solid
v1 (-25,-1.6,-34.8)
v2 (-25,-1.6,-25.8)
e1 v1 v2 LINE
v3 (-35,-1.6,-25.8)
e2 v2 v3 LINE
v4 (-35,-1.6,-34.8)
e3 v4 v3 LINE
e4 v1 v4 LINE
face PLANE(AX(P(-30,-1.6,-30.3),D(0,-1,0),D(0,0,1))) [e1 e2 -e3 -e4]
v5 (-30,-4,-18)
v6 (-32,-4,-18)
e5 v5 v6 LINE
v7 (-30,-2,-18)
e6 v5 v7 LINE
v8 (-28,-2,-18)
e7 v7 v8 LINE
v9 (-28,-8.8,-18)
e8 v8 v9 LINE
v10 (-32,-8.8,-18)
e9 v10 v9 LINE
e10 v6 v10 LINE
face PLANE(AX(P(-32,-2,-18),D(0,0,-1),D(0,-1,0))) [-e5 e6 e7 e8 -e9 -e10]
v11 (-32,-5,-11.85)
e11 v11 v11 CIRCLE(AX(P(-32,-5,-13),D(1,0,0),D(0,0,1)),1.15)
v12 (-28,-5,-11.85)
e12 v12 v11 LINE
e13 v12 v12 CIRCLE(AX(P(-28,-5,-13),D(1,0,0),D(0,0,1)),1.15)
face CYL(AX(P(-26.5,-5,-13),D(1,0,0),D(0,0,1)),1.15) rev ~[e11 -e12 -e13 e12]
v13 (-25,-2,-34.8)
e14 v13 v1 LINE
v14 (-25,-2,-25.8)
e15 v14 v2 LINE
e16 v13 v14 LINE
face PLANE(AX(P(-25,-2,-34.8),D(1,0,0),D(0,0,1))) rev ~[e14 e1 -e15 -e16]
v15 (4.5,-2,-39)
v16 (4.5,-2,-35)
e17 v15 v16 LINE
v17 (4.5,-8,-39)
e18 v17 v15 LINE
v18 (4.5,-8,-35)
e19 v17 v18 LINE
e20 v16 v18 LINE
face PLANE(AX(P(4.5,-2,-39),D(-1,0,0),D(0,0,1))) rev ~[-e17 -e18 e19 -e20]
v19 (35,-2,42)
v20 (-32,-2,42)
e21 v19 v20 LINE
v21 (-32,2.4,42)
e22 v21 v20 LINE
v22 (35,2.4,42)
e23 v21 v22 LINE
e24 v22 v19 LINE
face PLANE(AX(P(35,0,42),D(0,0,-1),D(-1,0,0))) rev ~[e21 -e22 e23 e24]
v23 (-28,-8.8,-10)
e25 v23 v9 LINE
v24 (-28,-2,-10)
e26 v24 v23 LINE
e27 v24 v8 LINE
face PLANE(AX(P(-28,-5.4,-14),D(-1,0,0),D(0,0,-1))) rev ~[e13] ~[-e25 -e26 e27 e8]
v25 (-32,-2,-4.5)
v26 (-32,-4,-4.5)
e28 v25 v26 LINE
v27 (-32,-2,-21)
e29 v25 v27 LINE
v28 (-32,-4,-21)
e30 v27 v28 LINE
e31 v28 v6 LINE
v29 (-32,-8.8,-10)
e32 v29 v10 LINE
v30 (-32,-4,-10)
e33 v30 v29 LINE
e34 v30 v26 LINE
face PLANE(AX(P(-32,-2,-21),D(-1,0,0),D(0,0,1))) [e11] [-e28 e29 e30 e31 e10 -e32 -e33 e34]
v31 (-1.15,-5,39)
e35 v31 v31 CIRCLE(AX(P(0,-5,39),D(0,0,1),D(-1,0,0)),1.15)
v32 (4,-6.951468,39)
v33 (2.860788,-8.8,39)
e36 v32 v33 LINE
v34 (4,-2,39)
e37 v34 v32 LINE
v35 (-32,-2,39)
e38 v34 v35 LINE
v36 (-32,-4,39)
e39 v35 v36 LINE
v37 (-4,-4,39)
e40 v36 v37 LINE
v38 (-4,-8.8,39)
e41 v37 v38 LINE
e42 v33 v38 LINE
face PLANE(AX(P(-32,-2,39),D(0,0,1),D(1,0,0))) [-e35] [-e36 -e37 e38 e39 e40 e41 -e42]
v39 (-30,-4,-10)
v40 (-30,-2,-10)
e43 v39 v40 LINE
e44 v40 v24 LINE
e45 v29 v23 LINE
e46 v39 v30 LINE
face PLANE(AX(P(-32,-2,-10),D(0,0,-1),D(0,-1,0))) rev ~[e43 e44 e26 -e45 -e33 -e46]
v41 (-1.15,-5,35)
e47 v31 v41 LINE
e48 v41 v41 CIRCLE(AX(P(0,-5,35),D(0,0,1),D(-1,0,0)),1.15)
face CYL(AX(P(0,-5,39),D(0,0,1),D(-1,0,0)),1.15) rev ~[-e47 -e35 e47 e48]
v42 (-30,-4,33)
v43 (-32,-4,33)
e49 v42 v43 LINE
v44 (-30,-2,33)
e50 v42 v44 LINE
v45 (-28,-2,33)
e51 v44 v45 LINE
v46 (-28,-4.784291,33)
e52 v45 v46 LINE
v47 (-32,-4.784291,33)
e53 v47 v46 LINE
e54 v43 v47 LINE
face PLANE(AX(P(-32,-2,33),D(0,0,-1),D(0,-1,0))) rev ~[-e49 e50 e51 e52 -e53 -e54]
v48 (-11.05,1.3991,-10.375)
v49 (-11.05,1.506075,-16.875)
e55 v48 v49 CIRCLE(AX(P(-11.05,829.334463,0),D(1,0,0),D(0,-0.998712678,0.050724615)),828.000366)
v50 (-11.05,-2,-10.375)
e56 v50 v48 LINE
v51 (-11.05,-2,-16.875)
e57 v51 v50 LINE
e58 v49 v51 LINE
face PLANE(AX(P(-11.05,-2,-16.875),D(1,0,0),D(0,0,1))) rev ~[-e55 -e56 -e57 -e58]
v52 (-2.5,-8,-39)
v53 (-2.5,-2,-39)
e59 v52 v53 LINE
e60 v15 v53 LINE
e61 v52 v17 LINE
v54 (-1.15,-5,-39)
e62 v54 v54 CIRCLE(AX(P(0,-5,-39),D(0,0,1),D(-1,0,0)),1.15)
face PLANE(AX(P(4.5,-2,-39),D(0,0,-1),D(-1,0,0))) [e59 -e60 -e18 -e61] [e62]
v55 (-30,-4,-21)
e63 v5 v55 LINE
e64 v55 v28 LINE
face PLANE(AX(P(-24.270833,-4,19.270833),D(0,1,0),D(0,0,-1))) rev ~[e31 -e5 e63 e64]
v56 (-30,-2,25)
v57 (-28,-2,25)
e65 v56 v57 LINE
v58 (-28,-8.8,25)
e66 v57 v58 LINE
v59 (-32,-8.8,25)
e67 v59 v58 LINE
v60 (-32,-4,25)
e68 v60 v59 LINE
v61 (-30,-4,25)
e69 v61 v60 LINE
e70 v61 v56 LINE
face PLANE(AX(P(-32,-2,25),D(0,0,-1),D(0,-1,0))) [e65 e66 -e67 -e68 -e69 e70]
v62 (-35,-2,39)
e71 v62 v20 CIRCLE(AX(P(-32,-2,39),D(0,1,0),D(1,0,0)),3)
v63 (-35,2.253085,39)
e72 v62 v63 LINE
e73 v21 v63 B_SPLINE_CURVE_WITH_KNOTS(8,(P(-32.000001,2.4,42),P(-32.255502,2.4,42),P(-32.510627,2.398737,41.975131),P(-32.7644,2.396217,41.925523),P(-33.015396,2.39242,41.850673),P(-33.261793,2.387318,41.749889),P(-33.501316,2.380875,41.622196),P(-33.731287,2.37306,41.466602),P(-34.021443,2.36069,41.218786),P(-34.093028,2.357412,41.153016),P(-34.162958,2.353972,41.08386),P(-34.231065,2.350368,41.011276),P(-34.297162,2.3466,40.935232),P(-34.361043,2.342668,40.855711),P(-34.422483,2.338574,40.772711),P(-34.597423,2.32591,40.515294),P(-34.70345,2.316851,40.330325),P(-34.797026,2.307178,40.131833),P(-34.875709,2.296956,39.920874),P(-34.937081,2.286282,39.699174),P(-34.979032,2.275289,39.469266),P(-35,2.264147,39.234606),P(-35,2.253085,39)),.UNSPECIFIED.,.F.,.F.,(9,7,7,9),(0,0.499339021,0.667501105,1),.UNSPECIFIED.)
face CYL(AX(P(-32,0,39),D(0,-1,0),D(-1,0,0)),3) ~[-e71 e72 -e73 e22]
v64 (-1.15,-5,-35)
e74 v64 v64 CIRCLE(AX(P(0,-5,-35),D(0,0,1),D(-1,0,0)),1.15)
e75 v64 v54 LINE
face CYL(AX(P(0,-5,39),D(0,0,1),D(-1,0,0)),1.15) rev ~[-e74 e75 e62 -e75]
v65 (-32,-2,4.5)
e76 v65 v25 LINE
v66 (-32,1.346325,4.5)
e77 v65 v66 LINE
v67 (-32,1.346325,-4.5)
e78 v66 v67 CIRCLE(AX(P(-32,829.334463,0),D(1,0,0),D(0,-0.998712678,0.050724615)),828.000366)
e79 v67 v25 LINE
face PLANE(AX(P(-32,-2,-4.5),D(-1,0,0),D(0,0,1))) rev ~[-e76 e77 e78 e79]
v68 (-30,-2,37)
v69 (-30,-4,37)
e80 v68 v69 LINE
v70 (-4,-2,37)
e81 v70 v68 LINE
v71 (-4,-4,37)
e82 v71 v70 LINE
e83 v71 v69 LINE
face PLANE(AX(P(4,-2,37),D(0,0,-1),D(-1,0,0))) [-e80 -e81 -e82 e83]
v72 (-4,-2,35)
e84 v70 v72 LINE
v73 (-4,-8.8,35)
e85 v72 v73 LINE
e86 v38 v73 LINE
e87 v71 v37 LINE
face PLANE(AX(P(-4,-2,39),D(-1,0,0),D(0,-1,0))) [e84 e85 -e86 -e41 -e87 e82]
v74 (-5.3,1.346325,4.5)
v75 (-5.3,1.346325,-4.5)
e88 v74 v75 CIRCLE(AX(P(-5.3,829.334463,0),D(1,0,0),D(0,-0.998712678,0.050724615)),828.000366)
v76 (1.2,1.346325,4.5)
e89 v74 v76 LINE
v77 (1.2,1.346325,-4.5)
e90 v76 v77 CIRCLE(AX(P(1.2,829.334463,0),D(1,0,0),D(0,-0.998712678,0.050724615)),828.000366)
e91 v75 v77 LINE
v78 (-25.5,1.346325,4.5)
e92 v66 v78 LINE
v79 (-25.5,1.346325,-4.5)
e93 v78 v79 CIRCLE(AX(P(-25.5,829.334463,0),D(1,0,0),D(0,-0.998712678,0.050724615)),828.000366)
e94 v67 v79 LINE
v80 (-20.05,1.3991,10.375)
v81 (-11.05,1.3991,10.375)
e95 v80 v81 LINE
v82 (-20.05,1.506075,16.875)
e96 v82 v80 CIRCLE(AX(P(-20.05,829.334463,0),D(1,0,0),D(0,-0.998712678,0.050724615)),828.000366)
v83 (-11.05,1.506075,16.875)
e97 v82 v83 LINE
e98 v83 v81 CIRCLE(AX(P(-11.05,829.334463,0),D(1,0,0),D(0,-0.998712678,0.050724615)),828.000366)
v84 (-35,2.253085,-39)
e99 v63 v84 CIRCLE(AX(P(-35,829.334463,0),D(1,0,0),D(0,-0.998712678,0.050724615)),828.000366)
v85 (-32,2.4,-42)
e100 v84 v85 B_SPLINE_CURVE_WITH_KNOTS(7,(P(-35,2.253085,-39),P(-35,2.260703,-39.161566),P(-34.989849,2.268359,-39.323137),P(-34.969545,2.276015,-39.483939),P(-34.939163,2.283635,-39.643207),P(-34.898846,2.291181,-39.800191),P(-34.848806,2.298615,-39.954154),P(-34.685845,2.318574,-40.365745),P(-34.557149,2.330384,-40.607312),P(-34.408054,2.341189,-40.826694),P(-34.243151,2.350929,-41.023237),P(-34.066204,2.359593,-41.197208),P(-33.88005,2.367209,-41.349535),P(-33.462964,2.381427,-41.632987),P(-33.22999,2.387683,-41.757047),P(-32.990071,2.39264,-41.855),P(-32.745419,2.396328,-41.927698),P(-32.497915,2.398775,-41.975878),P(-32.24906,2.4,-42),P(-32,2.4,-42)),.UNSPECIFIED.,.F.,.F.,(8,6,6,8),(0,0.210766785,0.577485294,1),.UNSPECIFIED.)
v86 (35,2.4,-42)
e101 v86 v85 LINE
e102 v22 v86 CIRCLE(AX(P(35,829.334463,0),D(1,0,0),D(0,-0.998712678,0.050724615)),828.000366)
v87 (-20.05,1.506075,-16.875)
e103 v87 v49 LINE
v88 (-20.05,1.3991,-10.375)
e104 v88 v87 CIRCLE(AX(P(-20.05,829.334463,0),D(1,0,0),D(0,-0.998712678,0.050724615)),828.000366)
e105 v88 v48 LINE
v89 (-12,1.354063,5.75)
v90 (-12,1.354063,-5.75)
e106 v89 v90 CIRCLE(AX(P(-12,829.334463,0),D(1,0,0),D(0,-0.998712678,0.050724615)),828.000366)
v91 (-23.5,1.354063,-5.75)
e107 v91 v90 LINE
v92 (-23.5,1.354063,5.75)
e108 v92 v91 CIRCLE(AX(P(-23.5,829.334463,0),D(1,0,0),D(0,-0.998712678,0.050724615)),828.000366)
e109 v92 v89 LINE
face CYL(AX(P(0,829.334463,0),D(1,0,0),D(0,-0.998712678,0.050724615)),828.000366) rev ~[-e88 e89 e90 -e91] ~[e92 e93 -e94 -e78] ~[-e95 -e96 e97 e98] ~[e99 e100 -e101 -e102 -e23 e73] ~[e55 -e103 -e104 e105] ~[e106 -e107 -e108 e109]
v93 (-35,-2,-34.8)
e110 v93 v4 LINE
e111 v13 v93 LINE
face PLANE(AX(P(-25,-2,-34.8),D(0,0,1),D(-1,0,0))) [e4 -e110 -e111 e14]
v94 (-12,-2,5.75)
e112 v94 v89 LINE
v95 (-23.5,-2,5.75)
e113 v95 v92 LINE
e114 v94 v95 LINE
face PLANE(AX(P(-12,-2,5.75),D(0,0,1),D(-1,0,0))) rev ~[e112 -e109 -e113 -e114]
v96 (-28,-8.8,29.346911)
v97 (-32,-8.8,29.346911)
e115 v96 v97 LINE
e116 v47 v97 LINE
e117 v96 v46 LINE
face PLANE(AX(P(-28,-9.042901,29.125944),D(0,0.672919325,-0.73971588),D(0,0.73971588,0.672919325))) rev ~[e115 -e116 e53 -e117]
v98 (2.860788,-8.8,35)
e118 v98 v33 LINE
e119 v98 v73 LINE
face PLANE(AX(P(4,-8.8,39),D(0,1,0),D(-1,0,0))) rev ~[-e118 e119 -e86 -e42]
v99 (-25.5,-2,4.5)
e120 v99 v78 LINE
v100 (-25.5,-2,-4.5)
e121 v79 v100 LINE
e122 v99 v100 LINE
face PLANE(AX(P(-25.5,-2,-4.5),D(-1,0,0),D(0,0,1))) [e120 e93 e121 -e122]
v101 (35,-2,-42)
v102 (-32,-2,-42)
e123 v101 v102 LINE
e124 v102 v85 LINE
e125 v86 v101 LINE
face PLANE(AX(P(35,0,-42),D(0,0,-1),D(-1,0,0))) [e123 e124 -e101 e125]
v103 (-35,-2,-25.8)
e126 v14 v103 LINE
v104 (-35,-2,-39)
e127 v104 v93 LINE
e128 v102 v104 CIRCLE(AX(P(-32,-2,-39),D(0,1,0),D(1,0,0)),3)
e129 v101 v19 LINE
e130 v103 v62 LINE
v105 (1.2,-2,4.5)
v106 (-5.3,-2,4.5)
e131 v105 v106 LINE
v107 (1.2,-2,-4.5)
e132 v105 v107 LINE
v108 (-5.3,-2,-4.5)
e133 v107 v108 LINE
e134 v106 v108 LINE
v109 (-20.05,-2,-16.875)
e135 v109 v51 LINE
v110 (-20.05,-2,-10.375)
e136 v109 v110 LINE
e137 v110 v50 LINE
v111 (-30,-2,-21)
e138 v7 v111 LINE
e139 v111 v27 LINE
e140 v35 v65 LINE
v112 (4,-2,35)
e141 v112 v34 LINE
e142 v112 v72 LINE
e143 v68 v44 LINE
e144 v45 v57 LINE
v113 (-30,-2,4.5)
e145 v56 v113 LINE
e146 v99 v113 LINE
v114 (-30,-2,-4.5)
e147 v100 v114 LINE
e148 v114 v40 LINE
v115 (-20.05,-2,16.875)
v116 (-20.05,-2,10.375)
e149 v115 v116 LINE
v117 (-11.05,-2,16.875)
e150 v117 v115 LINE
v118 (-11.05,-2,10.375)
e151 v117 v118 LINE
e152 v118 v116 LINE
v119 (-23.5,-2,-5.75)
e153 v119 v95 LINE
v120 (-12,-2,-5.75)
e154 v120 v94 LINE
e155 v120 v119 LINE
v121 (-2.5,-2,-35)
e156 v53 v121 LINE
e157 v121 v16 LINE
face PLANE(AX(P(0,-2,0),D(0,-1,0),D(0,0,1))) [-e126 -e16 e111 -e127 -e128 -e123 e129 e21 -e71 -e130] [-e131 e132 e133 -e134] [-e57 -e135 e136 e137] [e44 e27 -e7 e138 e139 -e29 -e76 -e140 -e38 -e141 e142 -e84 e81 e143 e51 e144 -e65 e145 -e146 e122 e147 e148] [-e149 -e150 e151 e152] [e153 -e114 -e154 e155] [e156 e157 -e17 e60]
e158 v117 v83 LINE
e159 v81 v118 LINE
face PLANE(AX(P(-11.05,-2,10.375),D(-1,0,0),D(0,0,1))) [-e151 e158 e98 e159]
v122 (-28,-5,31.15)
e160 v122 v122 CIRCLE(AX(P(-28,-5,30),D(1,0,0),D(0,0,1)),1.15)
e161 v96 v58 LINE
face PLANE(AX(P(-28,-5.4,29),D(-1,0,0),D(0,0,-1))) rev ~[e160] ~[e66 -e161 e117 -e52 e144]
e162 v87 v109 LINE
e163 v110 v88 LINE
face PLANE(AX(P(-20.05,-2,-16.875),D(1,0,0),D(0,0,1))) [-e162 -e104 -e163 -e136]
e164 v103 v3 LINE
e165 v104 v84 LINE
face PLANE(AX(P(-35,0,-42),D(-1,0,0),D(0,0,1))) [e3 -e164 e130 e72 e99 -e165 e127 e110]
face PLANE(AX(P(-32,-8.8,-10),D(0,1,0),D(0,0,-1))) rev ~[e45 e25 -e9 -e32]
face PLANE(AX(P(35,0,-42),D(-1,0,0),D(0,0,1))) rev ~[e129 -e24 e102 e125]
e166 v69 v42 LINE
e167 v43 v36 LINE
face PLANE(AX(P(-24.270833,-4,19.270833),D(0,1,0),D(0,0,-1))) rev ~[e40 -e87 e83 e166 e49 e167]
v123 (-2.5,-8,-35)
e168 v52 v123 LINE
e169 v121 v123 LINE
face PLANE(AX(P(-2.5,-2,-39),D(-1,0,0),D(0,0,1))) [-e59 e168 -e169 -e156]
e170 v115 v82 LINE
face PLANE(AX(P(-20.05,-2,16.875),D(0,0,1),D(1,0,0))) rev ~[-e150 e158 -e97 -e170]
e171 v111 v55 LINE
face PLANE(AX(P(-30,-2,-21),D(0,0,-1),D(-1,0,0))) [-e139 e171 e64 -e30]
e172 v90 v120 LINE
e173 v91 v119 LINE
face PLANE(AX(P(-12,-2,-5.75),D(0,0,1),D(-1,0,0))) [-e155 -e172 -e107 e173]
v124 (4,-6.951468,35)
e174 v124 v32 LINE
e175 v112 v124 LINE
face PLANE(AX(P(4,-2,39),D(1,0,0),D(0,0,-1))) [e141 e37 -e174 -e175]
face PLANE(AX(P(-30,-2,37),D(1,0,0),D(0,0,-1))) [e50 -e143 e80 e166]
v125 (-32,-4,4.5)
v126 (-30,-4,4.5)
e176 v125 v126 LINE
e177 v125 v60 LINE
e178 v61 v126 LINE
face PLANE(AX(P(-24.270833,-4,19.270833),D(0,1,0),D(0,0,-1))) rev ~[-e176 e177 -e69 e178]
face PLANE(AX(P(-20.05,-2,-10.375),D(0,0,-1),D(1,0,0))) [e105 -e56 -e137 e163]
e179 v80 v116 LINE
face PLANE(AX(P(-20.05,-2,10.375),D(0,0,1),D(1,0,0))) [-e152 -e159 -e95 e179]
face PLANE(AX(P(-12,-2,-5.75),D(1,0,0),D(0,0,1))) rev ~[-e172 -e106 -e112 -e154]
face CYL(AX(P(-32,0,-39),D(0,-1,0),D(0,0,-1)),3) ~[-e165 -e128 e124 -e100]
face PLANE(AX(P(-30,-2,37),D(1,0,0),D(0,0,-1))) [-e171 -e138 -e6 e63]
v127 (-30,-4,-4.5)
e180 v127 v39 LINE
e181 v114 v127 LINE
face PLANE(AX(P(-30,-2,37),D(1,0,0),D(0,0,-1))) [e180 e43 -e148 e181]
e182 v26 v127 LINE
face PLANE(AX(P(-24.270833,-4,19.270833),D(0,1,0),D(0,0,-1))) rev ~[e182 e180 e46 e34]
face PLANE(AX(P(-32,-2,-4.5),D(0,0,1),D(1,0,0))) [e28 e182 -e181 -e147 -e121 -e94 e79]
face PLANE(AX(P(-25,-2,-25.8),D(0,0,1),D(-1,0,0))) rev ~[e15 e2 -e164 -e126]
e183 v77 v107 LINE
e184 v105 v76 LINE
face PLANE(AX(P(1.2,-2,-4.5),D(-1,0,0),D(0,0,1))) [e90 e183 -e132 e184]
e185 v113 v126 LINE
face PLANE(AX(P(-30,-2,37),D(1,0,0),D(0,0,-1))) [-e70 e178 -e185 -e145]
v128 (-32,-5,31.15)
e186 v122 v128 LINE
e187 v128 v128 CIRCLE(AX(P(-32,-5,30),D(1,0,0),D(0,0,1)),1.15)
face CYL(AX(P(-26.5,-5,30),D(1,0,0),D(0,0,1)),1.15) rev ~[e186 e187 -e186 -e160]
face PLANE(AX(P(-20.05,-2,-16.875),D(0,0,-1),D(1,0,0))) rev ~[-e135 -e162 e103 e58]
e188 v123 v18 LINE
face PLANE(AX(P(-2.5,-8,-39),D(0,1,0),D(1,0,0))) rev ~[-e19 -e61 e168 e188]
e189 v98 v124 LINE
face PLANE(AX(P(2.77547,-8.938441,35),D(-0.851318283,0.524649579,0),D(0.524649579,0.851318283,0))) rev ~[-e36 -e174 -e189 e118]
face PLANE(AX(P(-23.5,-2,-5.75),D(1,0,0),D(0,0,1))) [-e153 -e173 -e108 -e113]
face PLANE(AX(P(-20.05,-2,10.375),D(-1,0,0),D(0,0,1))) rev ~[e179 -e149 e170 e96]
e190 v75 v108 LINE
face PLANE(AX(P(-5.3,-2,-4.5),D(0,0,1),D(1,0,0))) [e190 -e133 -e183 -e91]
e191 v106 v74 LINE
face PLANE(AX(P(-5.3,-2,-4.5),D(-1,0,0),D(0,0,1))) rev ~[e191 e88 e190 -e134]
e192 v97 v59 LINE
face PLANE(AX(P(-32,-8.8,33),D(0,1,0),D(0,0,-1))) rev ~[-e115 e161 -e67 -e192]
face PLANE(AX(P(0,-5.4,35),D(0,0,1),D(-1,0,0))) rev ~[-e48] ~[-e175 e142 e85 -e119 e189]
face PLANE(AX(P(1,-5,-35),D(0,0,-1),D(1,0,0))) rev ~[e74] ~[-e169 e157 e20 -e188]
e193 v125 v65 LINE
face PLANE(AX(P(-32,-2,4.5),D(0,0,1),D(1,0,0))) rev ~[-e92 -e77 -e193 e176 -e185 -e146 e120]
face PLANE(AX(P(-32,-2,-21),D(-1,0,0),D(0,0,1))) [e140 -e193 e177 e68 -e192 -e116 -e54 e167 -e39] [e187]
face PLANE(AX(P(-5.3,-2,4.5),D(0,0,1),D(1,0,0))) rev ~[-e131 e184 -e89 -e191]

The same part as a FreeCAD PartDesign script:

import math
import FreeCAD as App
import Part
import Sketcher

V = App.Vector


def edges_at(feature, points):
    """Names of the edges that pass closest to the given points."""
    edges = feature.Shape.Edges
    near = lambda p: min(range(len(edges)), key=lambda i: edges[i].distToShape(Part.Vertex(*p))[0])
    return sorted({f"Edge{near(p) + 1}" for p in points})

doc = App.newDocument("Part")
body = doc.addObject("PartDesign::Body", "Body")

# Sketch on XY plane
sketch1 = body.newObject("Sketcher::SketchObject", "Sketch")
sketch1.AttachmentSupport = (doc.getObject("XY_Plane"), [""])
sketch1.MapMode = "FlatFace"
sketch1.addGeometry([
    Part.LineSegment(V(-42, 35, 0), V(-42, -35, 0)),
    Part.LineSegment(V(-42, -35, 0), V(42, -35, 0)),
    Part.LineSegment(V(42, -35, 0), V(42, 35, 0)),
    Part.LineSegment(V(42, 35, 0), V(-42, 35, 0)),
], False)
sketch1.addConstraint([
    Sketcher.Constraint("Coincident", 0, 2, 1, 1),
    Sketcher.Constraint("Coincident", 1, 2, 2, 1),
    Sketcher.Constraint("Coincident", 2, 2, 3, 1),
    Sketcher.Constraint("Coincident", 3, 2, 0, 1),
    Sketcher.Constraint("Vertical", 0),
    Sketcher.Constraint("Horizontal", 1),
    Sketcher.Constraint("Vertical", 2),
    Sketcher.Constraint("Horizontal", 3),
    Sketcher.Constraint("Symmetric", 0, 2, 2, 2, -1, 1),
    Sketcher.Constraint("DistanceX", 1, 1, 1, 2, 84.0),
    Sketcher.Constraint("DistanceY", 0, 2, 0, 1, 70.0),
])
pad1 = body.newObject("PartDesign::Pad", "Pad")
pad1.Profile = sketch1
pad1.Length = 2

# Sketch on XY plane
sketch2 = body.newObject("Sketcher::SketchObject", "Sketch001")
sketch2.AttachmentSupport = (doc.getObject("XY_Plane"), [""])
sketch2.MapMode = "FlatFace"
sketch2.AttachmentOffset = App.Placement(V(0, 0, 2), App.Rotation())
sketch2.addGeometry([
    Part.LineSegment(V(-39, 2.5, 0), V(-39, -4.5, 0)),  # 0
    Part.LineSegment(V(-39, -4.5, 0), V(-37, -4.5, 0)),  # 1
    Part.LineSegment(V(-37, -4.5, 0), V(-37, 2.5, 0)),  # 2
    Part.LineSegment(V(-37, 2.5, 0), V(-39, 2.5, 0)),  # 3
    Part.LineSegment(V(39, 32, 0), V(-21, 32, 0)),  # 4
    Part.LineSegment(V(-21, 32, 0), V(-21, 30, 0)),  # 5
    Part.LineSegment(V(-21, 30, 0), V(37, 30, 0)),  # 6
    Part.LineSegment(V(37, 30, 0), V(37, -4, 0)),  # 7
    Part.LineSegment(V(37, -4, 0), V(39, -4, 0)),  # 8
    Part.LineSegment(V(39, -4, 0), V(39, 32, 0)),  # 9
], False)
sketch2.addConstraint([
    Sketcher.Constraint("Coincident", 0, 2, 1, 1),
    Sketcher.Constraint("Coincident", 1, 2, 2, 1),
    Sketcher.Constraint("Coincident", 2, 2, 3, 1),
    Sketcher.Constraint("Coincident", 3, 2, 0, 1),
    Sketcher.Constraint("Coincident", 4, 2, 5, 1),
    Sketcher.Constraint("Coincident", 5, 2, 6, 1),
    Sketcher.Constraint("Coincident", 6, 2, 7, 1),
    Sketcher.Constraint("Coincident", 7, 2, 8, 1),
    Sketcher.Constraint("Coincident", 8, 2, 9, 1),
    Sketcher.Constraint("Coincident", 9, 2, 4, 1),
    Sketcher.Constraint("Vertical", 0),
    Sketcher.Constraint("Horizontal", 1),
    Sketcher.Constraint("Vertical", 2),
    Sketcher.Constraint("Horizontal", 3),
    Sketcher.Constraint("Horizontal", 4),
    Sketcher.Constraint("Vertical", 5),
    Sketcher.Constraint("Horizontal", 6),
    Sketcher.Constraint("Vertical", 7),
    Sketcher.Constraint("Horizontal", 8),
    Sketcher.Constraint("Vertical", 9),
    Sketcher.Constraint("Equal", 3, 8),
    Sketcher.Constraint("Equal", 8, 5),
    Sketcher.Constraint("DistanceX", 1, 1, 1, 2, 2.0),
    Sketcher.Constraint("DistanceX", 4, 2, 4, 1, 60.0),
    Sketcher.Constraint("DistanceY", 0, 2, 0, 1, 7.0),
    Sketcher.Constraint("DistanceY", 7, 2, 7, 1, 34.0),
    Sketcher.Constraint("DistanceX", 0, 2, -1, 1, 39.0),
    Sketcher.Constraint("DistanceX", 4, 2, -1, 1, 21.0),
    Sketcher.Constraint("DistanceY", -1, 1, 4, 2, 32.0),
    Sketcher.Constraint("DistanceY", 0, 2, -1, 1, 4.5),
])
pad2 = body.newObject("PartDesign::Pad", "Pad001")
pad2.Profile = sketch2
pad2.Length = 2

# Sketch on YZ plane
sketch3 = body.newObject("Sketcher::SketchObject", "Sketch002")
sketch3.AttachmentSupport = (doc.getObject("YZ_Plane"), [""])
sketch3.MapMode = "FlatFace"
sketch3.AttachmentOffset = App.Placement(V(0, 0, 39), App.Rotation())
sketch3.addGeometry([
    Part.LineSegment(V(-4, 9, 0), V(-4, 2, 0)),
    Part.LineSegment(V(-4, 2, 0), V(4, 2, 0)),
    Part.LineSegment(V(4, 2, 0), V(4, 9, 0)),
    Part.LineSegment(V(4, 9, 0), V(-4, 9, 0)),
], False)
sketch3.addConstraint([
    Sketcher.Constraint("Coincident", 0, 2, 1, 1),
    Sketcher.Constraint("Coincident", 1, 2, 2, 1),
    Sketcher.Constraint("Coincident", 2, 2, 3, 1),
    Sketcher.Constraint("Coincident", 3, 2, 0, 1),
    Sketcher.Constraint("Vertical", 0),
    Sketcher.Constraint("Horizontal", 1),
    Sketcher.Constraint("Vertical", 2),
    Sketcher.Constraint("Horizontal", 3),
    Sketcher.Constraint("DistanceX", 1, 1, 1, 2, 8.0),
    Sketcher.Constraint("DistanceY", 0, 2, 0, 1, 6.8),
    Sketcher.Constraint("DistanceX", 0, 2, -1, 1, 4.0),
    Sketcher.Constraint("DistanceY", -1, 1, 0, 2, 2.0),
])
pad3 = body.newObject("PartDesign::Pad", "Pad002")
pad3.Profile = sketch3
pad3.Length = 4
pad3.Reversed = True

# Sketch on YZ plane
sketch4 = body.newObject("Sketcher::SketchObject", "Sketch003")
sketch4.AttachmentSupport = (doc.getObject("YZ_Plane"), [""])
sketch4.MapMode = "FlatFace"
sketch4.AttachmentOffset = App.Placement(V(0, 0, -39), App.Rotation())
sketch4.addGeometry([
    Part.LineSegment(V(2, 8, 0), V(2, 2, 0)),
    Part.LineSegment(V(2, 2, 0), V(-4, 2, 0)),
    Part.LineSegment(V(-4, 2, 0), V(-4, 8, 0)),
    Part.LineSegment(V(-4, 8, 0), V(2, 8, 0)),
], False)
sketch4.addConstraint([
    Sketcher.Constraint("Coincident", 0, 2, 1, 1),
    Sketcher.Constraint("Coincident", 1, 2, 2, 1),
    Sketcher.Constraint("Coincident", 2, 2, 3, 1),
    Sketcher.Constraint("Coincident", 3, 2, 0, 1),
    Sketcher.Constraint("Vertical", 0),
    Sketcher.Constraint("Horizontal", 1),
    Sketcher.Constraint("Vertical", 2),
    Sketcher.Constraint("Horizontal", 3),
    Sketcher.Constraint("DistanceX", 1, 2, 1, 1, 7.0),
    Sketcher.Constraint("DistanceY", 0, 2, 0, 1, 6.0),
    Sketcher.Constraint("DistanceY", -1, 1, 0, 2, 2.0),
    Sketcher.Constraint("DistanceX", -1, 1, 0, 2, 2.5),
])
pad4 = body.newObject("PartDesign::Pad", "Pad003")
pad4.Profile = sketch4
pad4.Length = 4

# Sketch on XZ plane
sketch5 = body.newObject("Sketcher::SketchObject", "Sketch004")
sketch5.AttachmentSupport = (doc.getObject("XZ_Plane"), [""])
sketch5.MapMode = "FlatFace"
sketch5.AttachmentOffset = App.Placement(V(0, 0, -32), App.Rotation())
sketch5.addGeometry([
    Part.LineSegment(V(33, 9, 0), V(33, 2, 0)),  # 0
    Part.LineSegment(V(33, 2, 0), V(25, 2, 0)),  # 1
    Part.LineSegment(V(25, 2, 0), V(25, 9, 0)),  # 2
    Part.LineSegment(V(25, 9, 0), V(33, 9, 0)),  # 3
    Part.LineSegment(V(-10, 9, 0), V(-10, 2, 0)),  # 4
    Part.LineSegment(V(-10, 2, 0), V(-18, 2, 0)),  # 5
    Part.LineSegment(V(-18, 2, 0), V(-18, 9, 0)),  # 6
    Part.LineSegment(V(-18, 9, 0), V(-10, 9, 0)),  # 7
], False)
sketch5.addConstraint([
    Sketcher.Constraint("Coincident", 0, 2, 1, 1),
    Sketcher.Constraint("Coincident", 1, 2, 2, 1),
    Sketcher.Constraint("Coincident", 2, 2, 3, 1),
    Sketcher.Constraint("Coincident", 3, 2, 0, 1),
    Sketcher.Constraint("Coincident", 4, 2, 5, 1),
    Sketcher.Constraint("Coincident", 5, 2, 6, 1),
    Sketcher.Constraint("Coincident", 6, 2, 7, 1),
    Sketcher.Constraint("Coincident", 7, 2, 4, 1),
    Sketcher.Constraint("Vertical", 0),
    Sketcher.Constraint("Horizontal", 1),
    Sketcher.Constraint("Vertical", 2),
    Sketcher.Constraint("Horizontal", 3),
    Sketcher.Constraint("Vertical", 4),
    Sketcher.Constraint("Horizontal", 5),
    Sketcher.Constraint("Vertical", 6),
    Sketcher.Constraint("Horizontal", 7),
    Sketcher.Constraint("Horizontal", 1, 2, 4, 2),
    Sketcher.Constraint("Horizontal", 3, 2, 6, 2),
    Sketcher.Constraint("Equal", 3, 5),
    Sketcher.Constraint("DistanceX", 1, 2, 1, 1, 8.0),
    Sketcher.Constraint("DistanceY", 0, 2, 0, 1, 6.8),
    Sketcher.Constraint("DistanceX", -1, 1, 0, 2, 33.0),
    Sketcher.Constraint("DistanceY", -1, 1, 0, 2, 2.0),
    Sketcher.Constraint("DistanceX", 4, 2, -1, 1, 10.0),
])
pad5 = body.newObject("PartDesign::Pad", "Pad004")
pad5.Profile = sketch5
pad5.Length = 4

# Sketch on YZ plane
sketch6 = body.newObject("Sketcher::SketchObject", "Sketch005")
sketch6.AttachmentSupport = (doc.getObject("YZ_Plane"), [""])
sketch6.MapMode = "FlatFace"
sketch6.AttachmentOffset = App.Placement(V(0, 0, 39), App.Rotation())
sketch6.addGeometry(Part.Circle(V(0, 5, 0), V(0, 0, 1), 1.1), False)
sketch6.addConstraint([
    Sketcher.Constraint("PointOnObject", 0, 3, -2),
    Sketcher.Constraint("Diameter", 0, 2.3),
    Sketcher.Constraint("DistanceY", -1, 1, 0, 3, 5.0),
])
pocket1 = body.newObject("PartDesign::Pocket", "Pocket")
pocket1.Profile = sketch6
pocket1.Type = "ThroughAll"

# Sketch on XZ plane
sketch7 = body.newObject("Sketcher::SketchObject", "Sketch006")
sketch7.AttachmentSupport = (doc.getObject("XZ_Plane"), [""])
sketch7.MapMode = "FlatFace"
sketch7.AttachmentOffset = App.Placement(V(0, 0, -26.5), App.Rotation())
sketch7.addGeometry([
    Part.Circle(V(-13, 5, 0), V(0, 0, 1), 1.1),
    Part.Circle(V(30, 5, 0), V(0, 0, 1), 1.1),
], False)
sketch7.addConstraint([
    Sketcher.Constraint("Equal", 0, 1),
    Sketcher.Constraint("Horizontal", 0, 3, 1, 3),
    Sketcher.Constraint("Diameter", 0, 2.3),
    Sketcher.Constraint("DistanceX", 0, 3, -1, 1, 13.0),
    Sketcher.Constraint("DistanceY", -1, 1, 0, 3, 5.0),
    Sketcher.Constraint("DistanceX", -1, 1, 1, 3, 30.0),
])
pocket2 = body.newObject("PartDesign::Pocket", "Pocket001")
pocket2.Profile = sketch7
pocket2.Type = "ThroughAll"

# Sketch on XY plane
sketch8 = body.newObject("Sketcher::SketchObject", "Sketch007")
sketch8.AttachmentSupport = (doc.getObject("XY_Plane"), [""])
sketch8.MapMode = "FlatFace"
sketch8.AttachmentOffset = App.Placement(V(0, 0, 2), App.Rotation())
sketch8.addGeometry([
    Part.LineSegment(V(-6, 24, 0), V(-6, 12, 0)),
    Part.LineSegment(V(-6, 12, 0), V(6, 12, 0)),
    Part.LineSegment(V(6, 12, 0), V(6, 24, 0)),
    Part.LineSegment(V(6, 24, 0), V(-6, 24, 0)),
], False)
sketch8.addConstraint([
    Sketcher.Constraint("Coincident", 0, 2, 1, 1),
    Sketcher.Constraint("Coincident", 1, 2, 2, 1),
    Sketcher.Constraint("Coincident", 2, 2, 3, 1),
    Sketcher.Constraint("Coincident", 3, 2, 0, 1),
    Sketcher.Constraint("Vertical", 0),
    Sketcher.Constraint("Horizontal", 1),
    Sketcher.Constraint("Vertical", 2),
    Sketcher.Constraint("Horizontal", 3),
    Sketcher.Constraint("Equal", 3, 0),
    Sketcher.Constraint("DistanceX", 1, 1, 1, 2, 11.5),
    Sketcher.Constraint("DistanceY", -1, 1, 0, 2, 12.0),
    Sketcher.Constraint("DistanceX", 0, 2, -1, 1, 5.75),
])
pocket3 = body.newObject("PartDesign::Pocket", "Pocket002")
pocket3.Profile = sketch8
pocket3.Length = 5

# Sketch on XZ plane
sketch9 = body.newObject("Sketcher::SketchObject", "Sketch008")
sketch9.AttachmentSupport = (doc.getObject("XZ_Plane"), [""])
sketch9.MapMode = "FlatFace"
sketch9.AttachmentOffset = App.Placement(V(0, 0, -28), App.Rotation())
sketch9.addGeometry([
    Part.LineSegment(V(29.1, 9, 0), V(33.3, 4.5, 0)),
    Part.LineSegment(V(33.3, 4.5, 0), V(33.3, 9, 0)),
    Part.LineSegment(V(33.3, 9, 0), V(29.1, 9, 0)),
], False)
sketch9.addConstraint([
    Sketcher.Constraint("Coincident", 0, 2, 1, 1),
    Sketcher.Constraint("Coincident", 1, 2, 2, 1),
    Sketcher.Constraint("Coincident", 2, 2, 0, 1),
    Sketcher.Constraint("Vertical", 1),
    Sketcher.Constraint("Horizontal", 2),
    Sketcher.Constraint("DistanceY", -1, 1, 1, 2, 9.042901),
    Sketcher.Constraint("DistanceX", 2, 2, 2, 1, 4.132925),
    Sketcher.Constraint("DistanceY", 1, 1, 1, 2, 4.543175),
    Sketcher.Constraint("DistanceX", -1, 1, 0, 2, 33.258869),
])
pocket4 = body.newObject("PartDesign::Pocket", "Pocket003")
pocket4.Profile = sketch9
pocket4.Length = 5

# Sketch on YZ plane
sketch10 = body.newObject("Sketcher::SketchObject", "Sketch009")
sketch10.AttachmentSupport = (doc.getObject("YZ_Plane"), [""])
sketch10.MapMode = "FlatFace"
sketch10.AttachmentOffset = App.Placement(V(0, 0, 35), App.Rotation())
sketch10.addGeometry([
    Part.LineSegment(V(-2.8, 8.9, 0), V(-6.4, 3.1, 0)),
    Part.LineSegment(V(-6.4, 3.1, 0), V(-6.4, 8.9, 0)),
    Part.LineSegment(V(-6.4, 8.9, 0), V(-2.8, 8.9, 0)),
], False)
sketch10.addConstraint([
    Sketcher.Constraint("Coincident", 0, 2, 1, 1),
    Sketcher.Constraint("Coincident", 1, 2, 2, 1),
    Sketcher.Constraint("Coincident", 2, 2, 0, 1),
    Sketcher.Constraint("Vertical", 1),
    Sketcher.Constraint("Horizontal", 2),
    Sketcher.Constraint("DistanceX", 2, 1, 2, 2, 3.610701),
    Sketcher.Constraint("Distance", 0, 6.882119),
    Sketcher.Constraint("DistanceX", 0, 2, -1, 1, 6.386171),
    Sketcher.Constraint("DistanceY", -1, 1, 1, 2, 8.938441),
])
pocket5 = body.newObject("PartDesign::Pocket", "Pocket004")
pocket5.Profile = sketch10
pocket5.Length = 5
pocket5.Reversed = True

# Sketch on XY plane
sketch11 = body.newObject("Sketcher::SketchObject", "Sketch010")
sketch11.AttachmentSupport = (doc.getObject("XY_Plane"), [""])
sketch11.MapMode = "FlatFace"
sketch11.AttachmentOffset = App.Placement(V(0, 0, 2), App.Rotation())
sketch11.addGeometry([
    Part.LineSegment(V(-35, 35, 0), V(-35, 25, 0)),
    Part.LineSegment(V(-35, 25, 0), V(-26, 25, 0)),
    Part.LineSegment(V(-26, 25, 0), V(-26, 35, 0)),
    Part.LineSegment(V(-26, 35, 0), V(-35, 35, 0)),
], False)
sketch11.addConstraint([
    Sketcher.Constraint("Coincident", 0, 2, 1, 1),
    Sketcher.Constraint("Coincident", 1, 2, 2, 1),
    Sketcher.Constraint("Coincident", 2, 2, 3, 1),
    Sketcher.Constraint("Coincident", 3, 2, 0, 1),
    Sketcher.Constraint("Vertical", 0),
    Sketcher.Constraint("Horizontal", 1),
    Sketcher.Constraint("Vertical", 2),
    Sketcher.Constraint("Horizontal", 3),
    Sketcher.Constraint("DistanceX", 1, 1, 1, 2, 9.0),
    Sketcher.Constraint("DistanceY", 0, 2, 0, 1, 10.0),
    Sketcher.Constraint("DistanceY", -1, 1, 0, 2, 25.0),
    Sketcher.Constraint("DistanceX", 0, 2, -1, 1, 34.8),
])
pocket6 = body.newObject("PartDesign::Pocket", "Pocket005")
pocket6.Profile = sketch11
pocket6.Length = 0.4
doc.recompute()

fillet = body.newObject("PartDesign::Fillet", "Fillet")
fillet.Base = (pocket6, edges_at(pocket6, [(42, 35, 1), (-42, 35, 1)]))
fillet.Radius = 3
body2 = doc.addObject("PartDesign::Body", "Body001")
doc.recompute()

body.Placement = App.Placement(V(0, 0, 0), App.Rotation(V(0, 1, 0), 270))
boolean = body2.newObject("PartDesign::Boolean", "Boolean")
boolean.Type = "Fuse"
boolean.addObjects([body])
body3 = doc.addObject("PartDesign::Body", "Body002")
doc.recompute()

body2.Placement = App.Placement(V(0, 0, 0), App.Rotation(V(0, 0, 1), 90))
boolean2 = body3.newObject("PartDesign::Boolean", "Boolean001")
boolean2.Type = "Fuse"
boolean2.addObjects([body2])
body4 = doc.addObject("PartDesign::Body", "Body003")

# Sketch on YZ plane
sketch12 = body4.newObject("Sketcher::SketchObject", "Sketch011")
sketch12.AttachmentSupport = (doc.getObject("YZ_Plane003"), [""])
sketch12.MapMode = "FlatFace"
sketch12.addGeometry([
    Part.ArcOfCircle(Part.Circle(V(829.3, 0, 0), V(0, 0, 1), 828), math.radians(177.09), math.radians(182.91)),
    Part.LineSegment(V(2.4, 42, 0), V(-0.1, 42, 0)),
    Part.LineSegment(V(-0.1, 42, 0), V(-0.1, -42, 0)),
    Part.LineSegment(V(-0.1, -42, 0), V(2.4, -42, 0)),
], False)
sketch12.addConstraint([
    Sketcher.Constraint("Coincident", 0, 1, 1, 1),
    Sketcher.Constraint("Coincident", 1, 2, 2, 1),
    Sketcher.Constraint("Coincident", 2, 2, 3, 1),
    Sketcher.Constraint("Coincident", 3, 2, 0, 2),
    Sketcher.Constraint("Horizontal", 1),
    Sketcher.Constraint("Vertical", 2),
    Sketcher.Constraint("Horizontal", 3),
    Sketcher.Constraint("PointOnObject", 0, 3, -1),
    Sketcher.Constraint("Equal", 1, 3),
    Sketcher.Constraint("DistanceY", 2, 2, 2, 1, 84.0),
    Sketcher.Constraint("DistanceX", 1, 2, 1, 1, 2.5),
    Sketcher.Constraint("DistanceX", -1, 1, 0, 1, 2.4),
    Sketcher.Constraint("Radius", 0, 828.000366),
])
pad6 = body4.newObject("PartDesign::Pad", "Pad005")
pad6.Profile = sketch12
pad6.Length = 70
pad6.Midplane = True

# Sketch on XZ plane
sketch13 = body4.newObject("Sketcher::SketchObject", "Sketch012")
sketch13.AttachmentSupport = (doc.getObject("XZ_Plane003"), [""])
sketch13.MapMode = "FlatFace"
sketch13.AttachmentOffset = App.Placement(V(0, 0, 0.1), App.Rotation())
sketch13.addGeometry([
    Part.LineSegment(V(-24, 6, 0), V(-24, -6, 0)),
    Part.LineSegment(V(-24, -6, 0), V(-12, -6, 0)),
    Part.LineSegment(V(-12, -6, 0), V(-12, 6, 0)),
    Part.LineSegment(V(-12, 6, 0), V(-24, 6, 0)),
], False)
sketch13.addConstraint([
    Sketcher.Constraint("Coincident", 0, 2, 1, 1),
    Sketcher.Constraint("Coincident", 1, 2, 2, 1),
    Sketcher.Constraint("Coincident", 2, 2, 3, 1),
    Sketcher.Constraint("Coincident", 3, 2, 0, 1),
    Sketcher.Constraint("Vertical", 0),
    Sketcher.Constraint("Horizontal", 1),
    Sketcher.Constraint("Vertical", 2),
    Sketcher.Constraint("Horizontal", 3),
    Sketcher.Constraint("Equal", 3, 0),
    Sketcher.Constraint("DistanceX", 1, 1, 1, 2, 11.5),
    Sketcher.Constraint("DistanceX", 1, 2, -1, 1, 12.0),
    Sketcher.Constraint("DistanceY", 0, 2, -1, 1, 5.75),
])
pocket7 = body4.newObject("PartDesign::Pocket", "Pocket006")
pocket7.Profile = sketch13
pocket7.Length = 13
doc.recompute()

fillet2 = body4.newObject("PartDesign::Fillet", "Fillet001")
fillet2.Base = (pocket7, edges_at(pocket7, [(-35, 1.15, -42), (-35, 1.15, 42)]))
fillet2.Radius = 3
doc.recompute()

boolean3 = body4.newObject("PartDesign::Boolean", "Boolean002")
boolean3.Type = "Fuse"
boolean3.addObjects([body3])

# Sketch on XZ plane
sketch14 = body4.newObject("Sketcher::SketchObject", "Sketch013")
sketch14.AttachmentSupport = (doc.getObject("XZ_Plane003"), [""])
sketch14.MapMode = "FlatFace"
sketch14.AttachmentOffset = App.Placement(V(0, 0, 2), App.Rotation())
sketch14.addGeometry([
    Part.LineSegment(V(-32, 4, 0), V(-32, -4, 0)),  # 0
    Part.LineSegment(V(-32, -4, 0), V(-26, -4, 0)),  # 1
    Part.LineSegment(V(-26, -4, 0), V(-26, 4, 0)),  # 2
    Part.LineSegment(V(-26, 4, 0), V(-32, 4, 0)),  # 3
    Part.LineSegment(V(-20, 17, 0), V(-20, 10, 0)),  # 4
    Part.LineSegment(V(-20, 10, 0), V(-11, 10, 0)),  # 5
    Part.LineSegment(V(-11, 10, 0), V(-11, 17, 0)),  # 6
    Part.LineSegment(V(-11, 17, 0), V(-20, 17, 0)),  # 7
    Part.LineSegment(V(-5, 4, 0), V(-5, -4, 0)),  # 8
    Part.LineSegment(V(-5, -4, 0), V(1, -4, 0)),  # 9
    Part.LineSegment(V(1, -4, 0), V(1, 4, 0)),  # 10
    Part.LineSegment(V(1, 4, 0), V(-5, 4, 0)),  # 11
    Part.LineSegment(V(-20, -10, 0), V(-20, -17, 0)),  # 12
    Part.LineSegment(V(-20, -17, 0), V(-11, -17, 0)),  # 13
    Part.LineSegment(V(-11, -17, 0), V(-11, -10, 0)),  # 14
    Part.LineSegment(V(-11, -10, 0), V(-20, -10, 0)),  # 15
], False)
sketch14.addConstraint([
    Sketcher.Constraint("Coincident", 0, 2, 1, 1),
    Sketcher.Constraint("Coincident", 1, 2, 2, 1),
    Sketcher.Constraint("Coincident", 2, 2, 3, 1),
    Sketcher.Constraint("Coincident", 3, 2, 0, 1),
    Sketcher.Constraint("Coincident", 4, 2, 5, 1),
    Sketcher.Constraint("Coincident", 5, 2, 6, 1),
    Sketcher.Constraint("Coincident", 6, 2, 7, 1),
    Sketcher.Constraint("Coincident", 7, 2, 4, 1),
    Sketcher.Constraint("Coincident", 8, 2, 9, 1),
    Sketcher.Constraint("Coincident", 9, 2, 10, 1),
    Sketcher.Constraint("Coincident", 10, 2, 11, 1),
    Sketcher.Constraint("Coincident", 11, 2, 8, 1),
    Sketcher.Constraint("Coincident", 12, 2, 13, 1),
    Sketcher.Constraint("Coincident", 13, 2, 14, 1),
    Sketcher.Constraint("Coincident", 14, 2, 15, 1),
    Sketcher.Constraint("Coincident", 15, 2, 12, 1),
    Sketcher.Constraint("Vertical", 0),
    Sketcher.Constraint("Horizontal", 1),
    Sketcher.Constraint("Vertical", 2),
    Sketcher.Constraint("Horizontal", 3),
    Sketcher.Constraint("Vertical", 4),
    Sketcher.Constraint("Horizontal", 5),
    Sketcher.Constraint("Vertical", 6),
    Sketcher.Constraint("Horizontal", 7),
    Sketcher.Constraint("Vertical", 8),
    Sketcher.Constraint("Horizontal", 9),
    Sketcher.Constraint("Vertical", 10),
    Sketcher.Constraint("Horizontal", 11),
    Sketcher.Constraint("Vertical", 12),
    Sketcher.Constraint("Horizontal", 13),
    Sketcher.Constraint("Vertical", 14),
    Sketcher.Constraint("Horizontal", 15),
    Sketcher.Constraint("Symmetric", 7, 2, 12, 2, -1),
    Sketcher.Constraint("Symmetric", 5, 2, 14, 2, -1),
    Sketcher.Constraint("Horizontal", 1, 2, 8, 2),
    Sketcher.Constraint("Horizontal", 3, 2, 10, 2),
    Sketcher.Constraint("Equal", 3, 9),
    Sketcher.Constraint("Equal", 15, 0),
    Sketcher.Constraint("Equal", 11, 4),
    Sketcher.Constraint("DistanceX", 5, 1, 5, 2, 9.0),
    Sketcher.Constraint("DistanceX", 1, 1, 1, 2, 6.5),
    Sketcher.Constraint("DistanceX", 0, 2, -1, 1, 32.0),
    Sketcher.Constraint("DistanceY", 0, 2, -1, 1, 4.5),
    Sketcher.Constraint("DistanceX", 8, 2, -1, 1, 5.3),
    Sketcher.Constraint("DistanceX", 4, 2, -1, 1, 20.05),
    Sketcher.Constraint("DistanceY", -1, 1, 4, 2, 10.375),
])
pocket8 = body4.newObject("PartDesign::Pocket", "Pocket007")
pocket8.Profile = sketch14
pocket8.Length = 16
pocket8.Midplane = True

doc.recompute()
